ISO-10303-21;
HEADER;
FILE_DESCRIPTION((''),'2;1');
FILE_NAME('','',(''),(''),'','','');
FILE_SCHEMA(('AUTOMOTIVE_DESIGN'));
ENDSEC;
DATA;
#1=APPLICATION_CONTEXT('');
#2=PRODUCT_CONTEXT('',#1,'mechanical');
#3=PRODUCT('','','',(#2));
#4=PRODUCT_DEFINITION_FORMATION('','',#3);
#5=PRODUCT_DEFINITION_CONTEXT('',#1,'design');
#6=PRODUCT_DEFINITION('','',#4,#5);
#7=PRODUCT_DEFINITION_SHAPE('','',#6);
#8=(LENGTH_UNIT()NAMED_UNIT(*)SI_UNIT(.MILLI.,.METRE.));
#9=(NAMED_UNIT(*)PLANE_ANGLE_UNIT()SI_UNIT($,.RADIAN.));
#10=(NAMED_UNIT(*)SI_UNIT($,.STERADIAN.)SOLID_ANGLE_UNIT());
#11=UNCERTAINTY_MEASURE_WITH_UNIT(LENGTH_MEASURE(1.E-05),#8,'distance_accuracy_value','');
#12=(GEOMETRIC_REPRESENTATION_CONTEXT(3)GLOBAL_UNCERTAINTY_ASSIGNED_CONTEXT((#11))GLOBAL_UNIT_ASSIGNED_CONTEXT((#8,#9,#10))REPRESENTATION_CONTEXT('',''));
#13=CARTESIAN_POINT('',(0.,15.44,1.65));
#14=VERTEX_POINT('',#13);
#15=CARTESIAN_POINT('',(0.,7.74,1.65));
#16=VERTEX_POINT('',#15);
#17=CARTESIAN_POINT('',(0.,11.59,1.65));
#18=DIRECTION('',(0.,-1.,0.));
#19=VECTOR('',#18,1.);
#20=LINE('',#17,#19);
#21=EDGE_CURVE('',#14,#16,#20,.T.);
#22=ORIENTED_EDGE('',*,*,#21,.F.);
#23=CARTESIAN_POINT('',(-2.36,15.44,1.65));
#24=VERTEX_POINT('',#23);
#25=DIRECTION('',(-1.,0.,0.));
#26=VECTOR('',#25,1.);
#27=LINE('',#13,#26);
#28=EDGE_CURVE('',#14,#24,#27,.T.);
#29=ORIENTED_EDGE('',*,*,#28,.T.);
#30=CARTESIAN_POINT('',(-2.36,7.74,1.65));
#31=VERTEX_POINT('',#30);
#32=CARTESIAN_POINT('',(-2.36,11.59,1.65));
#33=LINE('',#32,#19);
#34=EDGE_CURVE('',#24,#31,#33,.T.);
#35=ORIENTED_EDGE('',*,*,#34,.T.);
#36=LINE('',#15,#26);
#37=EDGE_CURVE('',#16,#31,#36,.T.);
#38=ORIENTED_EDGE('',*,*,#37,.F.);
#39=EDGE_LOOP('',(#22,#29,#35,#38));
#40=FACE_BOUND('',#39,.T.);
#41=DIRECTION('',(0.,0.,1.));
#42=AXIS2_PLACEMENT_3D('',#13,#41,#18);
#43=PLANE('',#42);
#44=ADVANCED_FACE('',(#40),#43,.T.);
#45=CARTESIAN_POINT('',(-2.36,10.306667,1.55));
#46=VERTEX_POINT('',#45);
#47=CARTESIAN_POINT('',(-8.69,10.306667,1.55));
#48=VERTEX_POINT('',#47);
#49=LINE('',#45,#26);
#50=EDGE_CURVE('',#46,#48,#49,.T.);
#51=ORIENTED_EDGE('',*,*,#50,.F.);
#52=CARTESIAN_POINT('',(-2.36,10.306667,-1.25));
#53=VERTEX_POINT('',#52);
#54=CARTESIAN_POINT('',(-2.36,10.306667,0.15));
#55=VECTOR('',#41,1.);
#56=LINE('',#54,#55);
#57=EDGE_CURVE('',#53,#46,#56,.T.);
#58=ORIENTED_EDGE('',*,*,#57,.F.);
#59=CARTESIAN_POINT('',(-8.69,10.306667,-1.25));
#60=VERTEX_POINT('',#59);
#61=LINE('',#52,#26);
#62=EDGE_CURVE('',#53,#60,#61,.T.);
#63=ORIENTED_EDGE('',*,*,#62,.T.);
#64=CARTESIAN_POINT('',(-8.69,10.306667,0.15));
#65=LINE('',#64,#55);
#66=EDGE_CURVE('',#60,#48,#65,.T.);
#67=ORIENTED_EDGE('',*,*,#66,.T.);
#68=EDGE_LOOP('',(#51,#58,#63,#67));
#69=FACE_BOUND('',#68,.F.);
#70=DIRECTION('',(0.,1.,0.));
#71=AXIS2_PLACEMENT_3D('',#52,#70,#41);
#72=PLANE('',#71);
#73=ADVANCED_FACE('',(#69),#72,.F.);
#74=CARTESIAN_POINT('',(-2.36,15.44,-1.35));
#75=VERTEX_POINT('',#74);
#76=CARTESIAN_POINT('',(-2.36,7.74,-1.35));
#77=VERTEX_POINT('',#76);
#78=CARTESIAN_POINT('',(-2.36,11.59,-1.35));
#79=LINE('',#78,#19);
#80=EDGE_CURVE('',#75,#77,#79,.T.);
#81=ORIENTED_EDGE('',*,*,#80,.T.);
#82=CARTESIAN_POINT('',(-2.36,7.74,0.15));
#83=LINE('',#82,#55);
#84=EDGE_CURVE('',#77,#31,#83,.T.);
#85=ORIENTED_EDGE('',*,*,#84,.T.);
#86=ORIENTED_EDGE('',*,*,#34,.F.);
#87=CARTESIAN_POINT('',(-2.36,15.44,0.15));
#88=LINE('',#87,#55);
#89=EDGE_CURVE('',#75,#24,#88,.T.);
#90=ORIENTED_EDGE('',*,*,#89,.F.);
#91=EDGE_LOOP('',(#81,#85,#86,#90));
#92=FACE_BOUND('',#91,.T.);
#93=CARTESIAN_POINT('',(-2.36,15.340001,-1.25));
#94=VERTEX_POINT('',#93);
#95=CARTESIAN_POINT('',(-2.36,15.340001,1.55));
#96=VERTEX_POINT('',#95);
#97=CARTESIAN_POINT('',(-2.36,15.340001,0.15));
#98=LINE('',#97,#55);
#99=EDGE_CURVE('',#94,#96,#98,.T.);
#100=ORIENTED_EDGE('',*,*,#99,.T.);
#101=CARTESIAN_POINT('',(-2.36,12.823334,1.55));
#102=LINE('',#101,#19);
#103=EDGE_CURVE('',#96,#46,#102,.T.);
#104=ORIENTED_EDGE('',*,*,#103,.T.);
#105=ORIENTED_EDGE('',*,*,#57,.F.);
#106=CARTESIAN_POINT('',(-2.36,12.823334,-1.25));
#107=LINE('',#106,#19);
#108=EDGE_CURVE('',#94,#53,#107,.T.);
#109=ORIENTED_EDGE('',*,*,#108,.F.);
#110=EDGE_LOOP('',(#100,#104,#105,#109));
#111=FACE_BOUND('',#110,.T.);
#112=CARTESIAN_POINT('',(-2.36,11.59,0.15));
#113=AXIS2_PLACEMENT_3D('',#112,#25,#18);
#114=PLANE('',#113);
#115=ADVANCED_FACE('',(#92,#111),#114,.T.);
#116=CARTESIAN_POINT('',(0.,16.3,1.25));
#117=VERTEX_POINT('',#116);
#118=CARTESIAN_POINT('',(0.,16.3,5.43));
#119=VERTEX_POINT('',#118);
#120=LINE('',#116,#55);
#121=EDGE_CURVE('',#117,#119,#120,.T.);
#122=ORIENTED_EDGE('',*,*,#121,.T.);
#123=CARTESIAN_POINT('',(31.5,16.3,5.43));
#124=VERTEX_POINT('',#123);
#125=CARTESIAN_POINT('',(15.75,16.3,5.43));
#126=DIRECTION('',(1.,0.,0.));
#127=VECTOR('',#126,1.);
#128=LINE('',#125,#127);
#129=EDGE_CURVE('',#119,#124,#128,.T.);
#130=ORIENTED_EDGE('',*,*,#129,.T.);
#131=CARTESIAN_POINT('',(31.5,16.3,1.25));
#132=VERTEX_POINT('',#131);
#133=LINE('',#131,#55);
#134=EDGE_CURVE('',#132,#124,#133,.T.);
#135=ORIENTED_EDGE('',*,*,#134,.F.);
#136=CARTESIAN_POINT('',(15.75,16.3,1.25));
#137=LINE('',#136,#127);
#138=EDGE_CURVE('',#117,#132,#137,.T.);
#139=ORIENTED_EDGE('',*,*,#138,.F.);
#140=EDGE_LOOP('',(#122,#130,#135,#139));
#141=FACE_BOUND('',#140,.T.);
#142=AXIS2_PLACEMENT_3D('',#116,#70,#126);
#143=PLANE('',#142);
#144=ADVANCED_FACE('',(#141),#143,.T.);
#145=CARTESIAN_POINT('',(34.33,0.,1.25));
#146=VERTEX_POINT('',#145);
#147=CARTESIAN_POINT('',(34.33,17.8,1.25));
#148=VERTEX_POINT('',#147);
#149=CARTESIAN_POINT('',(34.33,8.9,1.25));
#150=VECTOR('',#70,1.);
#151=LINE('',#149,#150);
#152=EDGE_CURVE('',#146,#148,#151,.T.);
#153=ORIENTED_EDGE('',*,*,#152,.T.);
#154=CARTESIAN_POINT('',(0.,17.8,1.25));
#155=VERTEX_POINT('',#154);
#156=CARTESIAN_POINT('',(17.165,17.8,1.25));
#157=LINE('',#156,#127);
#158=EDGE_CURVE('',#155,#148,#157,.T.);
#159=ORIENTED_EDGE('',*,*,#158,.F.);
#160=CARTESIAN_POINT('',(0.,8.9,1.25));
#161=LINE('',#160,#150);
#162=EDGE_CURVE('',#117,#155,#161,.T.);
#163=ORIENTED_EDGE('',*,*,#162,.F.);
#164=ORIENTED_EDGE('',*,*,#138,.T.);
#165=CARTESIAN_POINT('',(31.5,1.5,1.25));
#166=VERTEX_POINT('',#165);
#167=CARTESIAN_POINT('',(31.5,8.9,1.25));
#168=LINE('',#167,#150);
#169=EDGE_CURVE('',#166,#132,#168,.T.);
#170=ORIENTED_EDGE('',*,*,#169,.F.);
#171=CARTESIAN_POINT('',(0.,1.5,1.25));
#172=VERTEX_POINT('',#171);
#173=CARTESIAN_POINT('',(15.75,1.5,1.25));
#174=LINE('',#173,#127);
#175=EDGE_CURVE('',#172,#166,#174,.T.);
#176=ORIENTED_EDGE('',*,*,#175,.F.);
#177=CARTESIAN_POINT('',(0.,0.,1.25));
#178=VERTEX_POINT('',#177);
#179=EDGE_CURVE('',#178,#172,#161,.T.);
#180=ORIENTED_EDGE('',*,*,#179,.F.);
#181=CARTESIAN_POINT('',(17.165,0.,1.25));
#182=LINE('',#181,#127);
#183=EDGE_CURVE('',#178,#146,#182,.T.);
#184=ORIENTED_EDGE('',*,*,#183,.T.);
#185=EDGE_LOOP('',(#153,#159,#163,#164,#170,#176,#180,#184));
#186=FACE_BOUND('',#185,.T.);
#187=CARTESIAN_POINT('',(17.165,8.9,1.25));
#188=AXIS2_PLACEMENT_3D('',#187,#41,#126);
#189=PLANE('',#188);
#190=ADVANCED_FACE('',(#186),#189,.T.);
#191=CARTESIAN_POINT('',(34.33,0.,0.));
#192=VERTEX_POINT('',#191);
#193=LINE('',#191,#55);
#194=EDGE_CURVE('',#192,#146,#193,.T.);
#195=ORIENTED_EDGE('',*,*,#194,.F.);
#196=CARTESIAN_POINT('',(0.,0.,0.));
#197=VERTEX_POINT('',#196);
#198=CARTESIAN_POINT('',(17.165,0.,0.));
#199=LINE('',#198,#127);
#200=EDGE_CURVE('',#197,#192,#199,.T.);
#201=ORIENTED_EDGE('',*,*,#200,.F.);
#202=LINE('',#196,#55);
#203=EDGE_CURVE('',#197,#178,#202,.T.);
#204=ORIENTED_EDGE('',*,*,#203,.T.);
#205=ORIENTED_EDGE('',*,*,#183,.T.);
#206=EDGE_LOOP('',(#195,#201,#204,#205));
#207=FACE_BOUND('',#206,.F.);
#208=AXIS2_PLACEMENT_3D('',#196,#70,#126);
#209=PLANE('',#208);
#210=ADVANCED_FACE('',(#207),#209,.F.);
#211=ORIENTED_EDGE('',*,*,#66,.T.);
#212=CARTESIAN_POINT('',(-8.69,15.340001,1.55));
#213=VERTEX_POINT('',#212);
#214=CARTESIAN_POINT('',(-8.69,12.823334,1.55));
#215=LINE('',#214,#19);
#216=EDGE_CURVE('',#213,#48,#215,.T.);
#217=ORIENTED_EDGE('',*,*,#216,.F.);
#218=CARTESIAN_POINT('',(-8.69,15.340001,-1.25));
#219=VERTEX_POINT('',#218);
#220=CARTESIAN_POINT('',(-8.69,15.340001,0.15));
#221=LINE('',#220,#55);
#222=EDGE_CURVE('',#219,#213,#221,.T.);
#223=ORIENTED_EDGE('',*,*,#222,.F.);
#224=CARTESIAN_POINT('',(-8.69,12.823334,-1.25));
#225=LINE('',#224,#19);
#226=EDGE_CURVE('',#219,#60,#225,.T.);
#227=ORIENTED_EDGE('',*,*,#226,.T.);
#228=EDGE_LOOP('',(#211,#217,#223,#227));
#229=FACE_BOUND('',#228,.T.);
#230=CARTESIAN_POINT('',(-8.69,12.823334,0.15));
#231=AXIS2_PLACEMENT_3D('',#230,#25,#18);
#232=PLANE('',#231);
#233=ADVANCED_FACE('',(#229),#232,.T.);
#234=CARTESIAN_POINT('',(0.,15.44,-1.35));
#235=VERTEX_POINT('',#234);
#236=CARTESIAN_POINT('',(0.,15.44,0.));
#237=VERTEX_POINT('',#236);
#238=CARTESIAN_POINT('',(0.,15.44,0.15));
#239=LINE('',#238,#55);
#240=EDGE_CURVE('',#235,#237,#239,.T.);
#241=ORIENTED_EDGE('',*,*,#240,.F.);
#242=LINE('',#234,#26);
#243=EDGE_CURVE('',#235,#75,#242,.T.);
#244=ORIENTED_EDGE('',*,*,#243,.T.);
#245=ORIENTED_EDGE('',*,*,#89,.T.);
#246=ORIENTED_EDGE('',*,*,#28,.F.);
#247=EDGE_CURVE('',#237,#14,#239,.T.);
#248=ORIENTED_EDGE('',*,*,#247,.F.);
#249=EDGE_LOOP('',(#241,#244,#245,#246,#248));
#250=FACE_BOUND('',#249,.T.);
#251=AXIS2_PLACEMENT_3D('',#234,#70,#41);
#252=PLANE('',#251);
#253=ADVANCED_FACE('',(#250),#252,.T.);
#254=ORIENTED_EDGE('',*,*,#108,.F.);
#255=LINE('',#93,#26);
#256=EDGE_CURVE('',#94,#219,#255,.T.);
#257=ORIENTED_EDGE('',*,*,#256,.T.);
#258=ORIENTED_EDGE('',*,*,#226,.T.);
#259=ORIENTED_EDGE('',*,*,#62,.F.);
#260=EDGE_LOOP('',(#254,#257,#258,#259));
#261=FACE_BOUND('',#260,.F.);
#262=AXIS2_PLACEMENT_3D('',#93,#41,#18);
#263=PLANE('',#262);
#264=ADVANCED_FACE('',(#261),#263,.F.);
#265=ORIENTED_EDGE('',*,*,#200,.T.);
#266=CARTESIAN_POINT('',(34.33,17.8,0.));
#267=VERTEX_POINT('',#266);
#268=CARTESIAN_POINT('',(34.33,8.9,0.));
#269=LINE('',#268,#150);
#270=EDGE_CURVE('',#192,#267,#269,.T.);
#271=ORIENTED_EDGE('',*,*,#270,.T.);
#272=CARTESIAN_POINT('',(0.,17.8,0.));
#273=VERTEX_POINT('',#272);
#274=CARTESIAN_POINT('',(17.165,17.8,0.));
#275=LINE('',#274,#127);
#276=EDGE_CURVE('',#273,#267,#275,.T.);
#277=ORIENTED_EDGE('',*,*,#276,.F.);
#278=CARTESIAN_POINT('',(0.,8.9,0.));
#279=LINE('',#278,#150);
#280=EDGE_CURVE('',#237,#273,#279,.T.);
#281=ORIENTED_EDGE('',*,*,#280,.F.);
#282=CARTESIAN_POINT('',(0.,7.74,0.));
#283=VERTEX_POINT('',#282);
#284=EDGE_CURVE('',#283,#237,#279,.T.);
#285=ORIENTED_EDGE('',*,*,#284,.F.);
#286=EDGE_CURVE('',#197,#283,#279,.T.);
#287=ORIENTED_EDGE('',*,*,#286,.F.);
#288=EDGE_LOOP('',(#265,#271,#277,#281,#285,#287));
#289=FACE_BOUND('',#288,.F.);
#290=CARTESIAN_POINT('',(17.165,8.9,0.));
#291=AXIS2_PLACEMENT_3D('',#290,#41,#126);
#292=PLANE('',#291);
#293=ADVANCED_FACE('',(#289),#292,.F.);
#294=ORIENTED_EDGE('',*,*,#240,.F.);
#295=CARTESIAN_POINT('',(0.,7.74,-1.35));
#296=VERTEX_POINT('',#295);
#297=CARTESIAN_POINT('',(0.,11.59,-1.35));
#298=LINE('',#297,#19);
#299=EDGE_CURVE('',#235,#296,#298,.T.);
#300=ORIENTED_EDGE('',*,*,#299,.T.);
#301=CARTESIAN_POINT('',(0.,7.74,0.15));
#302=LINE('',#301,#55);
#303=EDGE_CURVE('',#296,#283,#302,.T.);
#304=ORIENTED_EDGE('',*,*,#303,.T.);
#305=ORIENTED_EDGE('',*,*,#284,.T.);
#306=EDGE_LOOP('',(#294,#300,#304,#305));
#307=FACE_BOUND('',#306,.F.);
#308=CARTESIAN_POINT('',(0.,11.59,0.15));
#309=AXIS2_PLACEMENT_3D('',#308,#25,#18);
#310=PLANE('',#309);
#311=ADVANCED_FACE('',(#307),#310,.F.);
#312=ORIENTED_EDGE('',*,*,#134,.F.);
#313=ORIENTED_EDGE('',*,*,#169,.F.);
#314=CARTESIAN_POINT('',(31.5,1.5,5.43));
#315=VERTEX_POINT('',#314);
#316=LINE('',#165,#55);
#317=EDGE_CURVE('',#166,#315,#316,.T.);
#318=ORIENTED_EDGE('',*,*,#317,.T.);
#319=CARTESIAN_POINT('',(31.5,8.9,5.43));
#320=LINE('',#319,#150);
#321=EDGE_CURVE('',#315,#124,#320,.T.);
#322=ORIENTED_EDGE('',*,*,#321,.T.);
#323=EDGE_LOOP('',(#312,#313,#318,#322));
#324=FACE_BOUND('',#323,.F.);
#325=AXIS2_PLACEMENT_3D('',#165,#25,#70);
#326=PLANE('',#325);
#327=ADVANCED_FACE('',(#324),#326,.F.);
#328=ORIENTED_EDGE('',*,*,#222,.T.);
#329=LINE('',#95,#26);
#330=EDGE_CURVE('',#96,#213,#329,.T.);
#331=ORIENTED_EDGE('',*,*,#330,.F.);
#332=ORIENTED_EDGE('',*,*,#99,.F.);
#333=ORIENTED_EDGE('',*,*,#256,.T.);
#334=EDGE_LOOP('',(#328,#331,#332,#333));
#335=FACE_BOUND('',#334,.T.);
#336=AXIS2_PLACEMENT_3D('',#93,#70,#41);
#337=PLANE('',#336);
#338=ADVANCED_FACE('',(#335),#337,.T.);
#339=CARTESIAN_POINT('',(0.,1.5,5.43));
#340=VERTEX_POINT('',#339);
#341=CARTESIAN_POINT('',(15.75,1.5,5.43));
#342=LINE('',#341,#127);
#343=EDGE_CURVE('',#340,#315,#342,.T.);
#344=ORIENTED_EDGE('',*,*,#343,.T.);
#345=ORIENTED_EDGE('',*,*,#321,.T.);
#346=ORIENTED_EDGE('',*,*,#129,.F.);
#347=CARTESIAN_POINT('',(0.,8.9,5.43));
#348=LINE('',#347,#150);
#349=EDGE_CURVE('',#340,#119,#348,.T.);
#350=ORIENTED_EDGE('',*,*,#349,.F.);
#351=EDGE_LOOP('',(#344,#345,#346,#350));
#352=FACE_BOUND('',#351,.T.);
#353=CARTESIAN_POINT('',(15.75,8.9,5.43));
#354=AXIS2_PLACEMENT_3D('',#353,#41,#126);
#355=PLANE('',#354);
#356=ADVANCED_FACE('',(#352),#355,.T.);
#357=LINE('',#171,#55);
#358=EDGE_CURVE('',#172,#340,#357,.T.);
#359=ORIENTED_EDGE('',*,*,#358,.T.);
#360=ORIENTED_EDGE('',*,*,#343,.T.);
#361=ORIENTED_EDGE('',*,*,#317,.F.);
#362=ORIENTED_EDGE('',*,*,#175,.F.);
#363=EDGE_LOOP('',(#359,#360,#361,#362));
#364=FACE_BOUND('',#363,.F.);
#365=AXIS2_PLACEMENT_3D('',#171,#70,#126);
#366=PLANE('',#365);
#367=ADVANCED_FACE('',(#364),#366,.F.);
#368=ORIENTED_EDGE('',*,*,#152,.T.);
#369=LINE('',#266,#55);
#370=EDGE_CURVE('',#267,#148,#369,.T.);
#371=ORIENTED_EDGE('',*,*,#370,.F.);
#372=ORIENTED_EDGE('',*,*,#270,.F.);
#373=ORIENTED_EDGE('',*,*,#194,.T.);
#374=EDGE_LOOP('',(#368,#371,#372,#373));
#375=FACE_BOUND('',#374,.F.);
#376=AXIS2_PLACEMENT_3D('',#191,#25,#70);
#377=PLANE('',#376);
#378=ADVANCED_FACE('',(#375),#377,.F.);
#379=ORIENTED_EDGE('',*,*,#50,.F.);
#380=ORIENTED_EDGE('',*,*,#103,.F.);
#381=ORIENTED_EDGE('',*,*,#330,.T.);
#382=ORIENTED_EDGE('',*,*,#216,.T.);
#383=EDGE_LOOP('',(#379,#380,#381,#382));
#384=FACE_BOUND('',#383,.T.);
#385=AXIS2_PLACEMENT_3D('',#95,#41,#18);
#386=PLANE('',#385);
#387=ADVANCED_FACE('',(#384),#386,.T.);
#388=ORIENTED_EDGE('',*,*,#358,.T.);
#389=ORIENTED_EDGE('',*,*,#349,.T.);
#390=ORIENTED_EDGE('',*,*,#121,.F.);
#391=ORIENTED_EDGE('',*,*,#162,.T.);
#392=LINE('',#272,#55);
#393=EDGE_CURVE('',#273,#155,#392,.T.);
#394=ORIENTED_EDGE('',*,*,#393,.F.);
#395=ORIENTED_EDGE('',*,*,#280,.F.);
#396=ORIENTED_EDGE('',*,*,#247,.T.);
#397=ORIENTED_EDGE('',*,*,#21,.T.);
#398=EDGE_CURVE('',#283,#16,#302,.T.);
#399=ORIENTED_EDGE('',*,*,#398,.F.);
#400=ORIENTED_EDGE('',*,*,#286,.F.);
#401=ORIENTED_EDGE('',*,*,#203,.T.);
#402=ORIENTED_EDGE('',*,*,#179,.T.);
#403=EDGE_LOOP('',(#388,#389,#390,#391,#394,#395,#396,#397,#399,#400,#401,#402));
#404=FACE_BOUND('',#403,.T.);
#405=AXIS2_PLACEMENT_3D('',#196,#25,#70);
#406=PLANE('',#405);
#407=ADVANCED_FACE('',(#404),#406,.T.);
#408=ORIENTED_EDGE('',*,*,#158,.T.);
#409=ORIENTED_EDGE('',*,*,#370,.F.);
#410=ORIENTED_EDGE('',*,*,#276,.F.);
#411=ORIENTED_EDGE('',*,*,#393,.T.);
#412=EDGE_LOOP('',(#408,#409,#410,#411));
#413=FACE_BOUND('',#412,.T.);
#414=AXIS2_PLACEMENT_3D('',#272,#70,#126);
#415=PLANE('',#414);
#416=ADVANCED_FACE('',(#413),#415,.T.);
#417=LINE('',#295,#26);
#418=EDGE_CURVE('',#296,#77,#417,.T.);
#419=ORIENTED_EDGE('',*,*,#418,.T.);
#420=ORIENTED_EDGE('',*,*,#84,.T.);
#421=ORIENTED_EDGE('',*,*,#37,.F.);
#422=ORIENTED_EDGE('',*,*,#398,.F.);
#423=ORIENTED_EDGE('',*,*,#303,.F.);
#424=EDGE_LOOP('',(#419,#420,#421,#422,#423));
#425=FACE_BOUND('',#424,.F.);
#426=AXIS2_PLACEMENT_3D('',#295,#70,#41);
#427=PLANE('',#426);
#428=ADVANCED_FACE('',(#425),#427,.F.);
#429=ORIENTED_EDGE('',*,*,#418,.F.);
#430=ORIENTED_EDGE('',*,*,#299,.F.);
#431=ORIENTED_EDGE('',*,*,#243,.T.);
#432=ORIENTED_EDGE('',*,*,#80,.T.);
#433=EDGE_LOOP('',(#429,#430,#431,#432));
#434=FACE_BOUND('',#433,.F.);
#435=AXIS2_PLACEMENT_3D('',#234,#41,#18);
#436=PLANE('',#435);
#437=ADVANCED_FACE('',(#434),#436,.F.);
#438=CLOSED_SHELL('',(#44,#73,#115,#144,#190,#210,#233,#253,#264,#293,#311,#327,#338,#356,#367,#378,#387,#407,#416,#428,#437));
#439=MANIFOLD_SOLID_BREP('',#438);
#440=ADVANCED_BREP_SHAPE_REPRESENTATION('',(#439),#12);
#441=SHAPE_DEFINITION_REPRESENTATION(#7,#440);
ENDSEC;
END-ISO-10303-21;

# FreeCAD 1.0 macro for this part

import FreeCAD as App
import Part
import Sketcher

V = App.Vector


def add_polygon(sketch, points):
    """Adds a closed chain of lines whose ends are joined by coincident constraints."""
    first, n = sketch.GeometryCount, len(points)
    for a, b in zip(points, points[1:] + points[:1]):
        sketch.addGeometry(Part.LineSegment(App.Vector(*a, 0), App.Vector(*b, 0)), False)
    for i in range(n):
        sketch.addConstraint(Sketcher.Constraint("Coincident", first + i, 2, first + (i + 1) % n, 1))

doc = App.newDocument("Part")
body = doc.addObject("PartDesign::Body", "Body")

# Sketch on XY plane
sketch1 = body.newObject("Sketcher::SketchObject", "Sketch")
sketch1.AttachmentSupport = (doc.getObject("XY_Plane"), [""])
sketch1.MapMode = "FlatFace"
add_polygon(sketch1, [(0, 18), (0, 0), (34, 0), (34, 18)])  # lines 0-3
sketch1.addConstraint([
    Sketcher.Constraint("Vertical", 0),
    Sketcher.Constraint("Horizontal", 1),
    Sketcher.Constraint("Vertical", 2),
    Sketcher.Constraint("Horizontal", 3),
    Sketcher.Constraint("Coincident", 0, 2, -1, 1),
    Sketcher.Constraint("DistanceY", 0, 2, 0, 1, 17.8),
    Sketcher.Constraint("DistanceX", 1, 1, 1, 2, 34.33),
])
pad1 = body.newObject("PartDesign::Pad", "Pad")
pad1.Profile = sketch1
pad1.Length = 1.25

# Sketch on XY plane
sketch2 = body.newObject("Sketcher::SketchObject", "Sketch001")
sketch2.AttachmentSupport = (doc.getObject("XY_Plane"), [""])
sketch2.MapMode = "FlatFace"
sketch2.AttachmentOffset = App.Placement(V(0, 0, 1.25), App.Rotation())
add_polygon(sketch2, [(0, 16), (0, 2), (32, 2), (32, 16)])  # lines 0-3
sketch2.addConstraint([
    Sketcher.Constraint("Vertical", 0),
    Sketcher.Constraint("Horizontal", 1),
    Sketcher.Constraint("Vertical", 2),
    Sketcher.Constraint("Horizontal", 3),
    Sketcher.Constraint("PointOnObject", 0, 2, -2),
    Sketcher.Constraint("DistanceX", 1, 1, 1, 2, 31.5),
    Sketcher.Constraint("DistanceY", 0, 2, 0, 1, 14.8),
    Sketcher.Constraint("DistanceY", -1, 1, 0, 2, 1.5),
])
pad2 = body.newObject("PartDesign::Pad", "Pad001")
pad2.Profile = sketch2
pad2.Length = 4.18

# Sketch on YZ plane
sketch3 = body.newObject("Sketcher::SketchObject", "Sketch002")
sketch3.AttachmentSupport = (doc.getObject("YZ_Plane"), [""])
sketch3.MapMode = "FlatFace"
add_polygon(sketch3, [(15.4, 1.6), (15.4, -1.4), (7.7, -1.4), (7.7, 1.6)])  # lines 0-3
sketch3.addConstraint([
    Sketcher.Constraint("Vertical", 0),
    Sketcher.Constraint("Horizontal", 1),
    Sketcher.Constraint("Vertical", 2),
    Sketcher.Constraint("Horizontal", 3),
    Sketcher.Constraint("DistanceY", 0, 2, 0, 1, 3.0),
    Sketcher.Constraint("DistanceX", 1, 2, 1, 1, 7.7),
    Sketcher.Constraint("DistanceX", -1, 1, 0, 2, 15.44),
    Sketcher.Constraint("DistanceY", 0, 2, -1, 1, 1.35),
])
pad3 = body.newObject("PartDesign::Pad", "Pad002")
pad3.Profile = sketch3
pad3.Length = 2.36
pad3.Reversed = True

# Sketch on YZ plane
sketch4 = body.newObject("Sketcher::SketchObject", "Sketch003")
sketch4.AttachmentSupport = (doc.getObject("YZ_Plane"), [""])
sketch4.MapMode = "FlatFace"
sketch4.AttachmentOffset = App.Placement(V(0, 0, -2.36), App.Rotation())
add_polygon(sketch4, [(15.3, 1.6), (15.3, -1.2), (10.3, -1.2), (10.3, 1.6)])  # lines 0-3
sketch4.addConstraint([
    Sketcher.Constraint("Vertical", 0),
    Sketcher.Constraint("Horizontal", 1),
    Sketcher.Constraint("Vertical", 2),
    Sketcher.Constraint("Horizontal", 3),
    Sketcher.Constraint("DistanceY", 0, 2, 0, 1, 2.8),
    Sketcher.Constraint("DistanceX", -1, 1, 0, 2, 15.340001),
    Sketcher.Constraint("DistanceY", 0, 2, -1, 1, 1.25),
    Sketcher.Constraint("DistanceX", 1, 2, 1, 1, 5.033333),
])
pad4 = body.newObject("PartDesign::Pad", "Pad003")
pad4.Profile = sketch4
pad4.Length = 6.33
pad4.Reversed = True

doc.recompute()
